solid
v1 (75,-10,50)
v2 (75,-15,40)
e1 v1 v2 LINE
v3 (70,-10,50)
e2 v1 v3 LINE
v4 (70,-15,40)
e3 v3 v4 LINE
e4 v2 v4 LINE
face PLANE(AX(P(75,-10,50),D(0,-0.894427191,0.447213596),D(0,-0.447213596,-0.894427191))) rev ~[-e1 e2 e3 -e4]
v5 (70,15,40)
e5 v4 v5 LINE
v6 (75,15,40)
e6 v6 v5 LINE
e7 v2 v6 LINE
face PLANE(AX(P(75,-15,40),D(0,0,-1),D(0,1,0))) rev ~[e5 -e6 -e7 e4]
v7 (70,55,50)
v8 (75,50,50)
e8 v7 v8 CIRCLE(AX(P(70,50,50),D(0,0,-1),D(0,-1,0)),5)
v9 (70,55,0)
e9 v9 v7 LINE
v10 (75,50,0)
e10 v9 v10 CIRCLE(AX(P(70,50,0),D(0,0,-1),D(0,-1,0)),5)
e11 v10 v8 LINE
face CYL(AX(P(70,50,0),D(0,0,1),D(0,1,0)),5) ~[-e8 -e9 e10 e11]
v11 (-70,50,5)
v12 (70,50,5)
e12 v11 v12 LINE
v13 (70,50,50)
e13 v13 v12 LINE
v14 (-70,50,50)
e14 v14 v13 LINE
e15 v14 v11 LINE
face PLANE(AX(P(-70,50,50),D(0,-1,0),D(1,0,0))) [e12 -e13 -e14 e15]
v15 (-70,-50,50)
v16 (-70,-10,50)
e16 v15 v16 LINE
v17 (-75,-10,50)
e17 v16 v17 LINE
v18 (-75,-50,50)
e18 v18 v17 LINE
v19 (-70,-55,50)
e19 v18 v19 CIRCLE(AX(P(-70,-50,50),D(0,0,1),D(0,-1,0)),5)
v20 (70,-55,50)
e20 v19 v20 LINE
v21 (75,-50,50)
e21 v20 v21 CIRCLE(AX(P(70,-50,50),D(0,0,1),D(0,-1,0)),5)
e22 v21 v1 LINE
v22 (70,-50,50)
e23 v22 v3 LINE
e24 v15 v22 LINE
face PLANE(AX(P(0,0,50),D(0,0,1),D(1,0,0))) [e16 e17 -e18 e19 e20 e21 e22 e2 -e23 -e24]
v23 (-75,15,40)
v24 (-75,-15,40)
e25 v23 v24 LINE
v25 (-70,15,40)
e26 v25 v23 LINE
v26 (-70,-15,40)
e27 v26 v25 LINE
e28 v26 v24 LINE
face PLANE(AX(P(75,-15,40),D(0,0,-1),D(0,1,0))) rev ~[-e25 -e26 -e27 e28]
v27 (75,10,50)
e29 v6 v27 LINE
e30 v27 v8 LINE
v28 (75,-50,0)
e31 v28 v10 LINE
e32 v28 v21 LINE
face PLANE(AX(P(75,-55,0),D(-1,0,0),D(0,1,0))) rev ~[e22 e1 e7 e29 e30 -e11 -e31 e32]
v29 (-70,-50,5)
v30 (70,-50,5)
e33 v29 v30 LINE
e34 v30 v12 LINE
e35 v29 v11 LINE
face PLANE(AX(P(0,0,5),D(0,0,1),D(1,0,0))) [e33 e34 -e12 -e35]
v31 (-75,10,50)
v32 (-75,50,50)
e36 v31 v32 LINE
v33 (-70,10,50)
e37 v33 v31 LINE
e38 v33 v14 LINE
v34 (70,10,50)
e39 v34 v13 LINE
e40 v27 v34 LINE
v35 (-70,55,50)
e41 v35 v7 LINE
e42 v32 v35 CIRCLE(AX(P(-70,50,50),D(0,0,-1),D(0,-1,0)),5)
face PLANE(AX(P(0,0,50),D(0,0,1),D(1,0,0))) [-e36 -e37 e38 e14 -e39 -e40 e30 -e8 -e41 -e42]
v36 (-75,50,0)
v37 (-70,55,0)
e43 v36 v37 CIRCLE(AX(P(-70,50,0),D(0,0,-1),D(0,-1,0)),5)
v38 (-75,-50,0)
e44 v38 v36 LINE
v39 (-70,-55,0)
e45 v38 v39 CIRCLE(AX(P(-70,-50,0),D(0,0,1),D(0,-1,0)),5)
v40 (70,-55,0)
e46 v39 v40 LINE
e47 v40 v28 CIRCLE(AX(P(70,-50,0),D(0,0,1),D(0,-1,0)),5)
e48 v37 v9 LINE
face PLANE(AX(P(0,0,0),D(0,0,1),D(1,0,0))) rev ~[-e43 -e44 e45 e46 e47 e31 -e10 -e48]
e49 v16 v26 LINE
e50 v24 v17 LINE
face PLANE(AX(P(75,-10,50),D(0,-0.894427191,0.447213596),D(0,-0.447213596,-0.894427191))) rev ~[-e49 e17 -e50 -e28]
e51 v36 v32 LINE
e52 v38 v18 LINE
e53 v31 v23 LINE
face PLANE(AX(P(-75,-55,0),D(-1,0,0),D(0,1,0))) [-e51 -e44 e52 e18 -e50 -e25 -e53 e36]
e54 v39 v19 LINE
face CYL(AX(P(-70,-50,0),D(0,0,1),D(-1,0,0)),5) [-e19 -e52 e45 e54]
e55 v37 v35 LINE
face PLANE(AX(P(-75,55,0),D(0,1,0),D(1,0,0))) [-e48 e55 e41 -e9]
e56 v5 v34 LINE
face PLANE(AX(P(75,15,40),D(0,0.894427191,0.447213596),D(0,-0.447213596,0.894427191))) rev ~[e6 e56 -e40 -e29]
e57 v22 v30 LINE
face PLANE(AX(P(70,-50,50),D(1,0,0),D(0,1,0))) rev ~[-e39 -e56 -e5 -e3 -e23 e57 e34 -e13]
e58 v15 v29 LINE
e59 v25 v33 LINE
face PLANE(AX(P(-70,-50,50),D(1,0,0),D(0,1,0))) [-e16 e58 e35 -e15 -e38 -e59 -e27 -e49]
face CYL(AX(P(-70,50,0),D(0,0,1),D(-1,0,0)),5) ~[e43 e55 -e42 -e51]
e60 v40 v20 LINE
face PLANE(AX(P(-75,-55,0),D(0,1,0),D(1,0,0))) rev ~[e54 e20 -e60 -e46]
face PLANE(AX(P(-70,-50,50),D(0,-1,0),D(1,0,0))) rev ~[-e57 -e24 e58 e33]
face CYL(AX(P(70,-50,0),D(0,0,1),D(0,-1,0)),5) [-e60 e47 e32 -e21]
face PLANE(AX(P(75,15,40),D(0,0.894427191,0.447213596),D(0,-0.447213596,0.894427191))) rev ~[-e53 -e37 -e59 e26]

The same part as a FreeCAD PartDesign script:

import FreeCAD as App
import Part
import Sketcher
Q = App.Units.Quantity


def edges_at(feature, points):
    """Names of the edges that pass closest to the given points."""
    edges = feature.Shape.Edges
    near = lambda p: min(range(len(edges)), key=lambda i: edges[i].distToShape(Part.Vertex(*p))[0])
    return sorted({f"Edge{near(p) + 1}" for p in points})

doc = App.newDocument("Part")
body = doc.addObject("PartDesign::Body", "Body")

sketch1 = body.newObject("Sketcher::SketchObject", "Sketch")
sketch1.AttachmentSupport = (doc.getObject("XY_Plane"), [""])
sketch1.MapMode = "FlatFace"
sketch1.addGeometry([
    Part.LineSegment(App.Vector(-75, 55, 0), App.Vector(-75, -55, 0)),
    Part.LineSegment(App.Vector(-75, -55, 0), App.Vector(75, -55, 0)),
    Part.LineSegment(App.Vector(75, -55, 0), App.Vector(75, 55, 0)),
    Part.LineSegment(App.Vector(75, 55, 0), App.Vector(-75, 55, 0)),
], False)
sketch1.addConstraint([
    Sketcher.Constraint("Coincident", 0, 2, 1, 1),
    Sketcher.Constraint("Coincident", 1, 2, 2, 1),
    Sketcher.Constraint("Coincident", 2, 2, 3, 1),
    Sketcher.Constraint("Coincident", 3, 2, 0, 1),
    Sketcher.Constraint("Vertical", 0),
    Sketcher.Constraint("Horizontal", 1),
    Sketcher.Constraint("Vertical", 2),
    Sketcher.Constraint("Horizontal", 3),
    Sketcher.Constraint("Symmetric", 0, 2, 2, 2, -1, 1),
    Sketcher.Constraint("DistanceX", 1, 1, 1, 2, Q("150 mm")),
    Sketcher.Constraint("DistanceY", 0, 2, 0, 1, Q("110 mm")),
])
pad1 = body.newObject("PartDesign::Pad", "Pad")
pad1.Profile = sketch1
pad1.Length = 50

sketch2 = body.newObject("Sketcher::SketchObject", "Sketch001")
sketch2.AttachmentSupport = (doc.getObject("XY_Plane"), [""])
sketch2.MapMode = "FlatFace"
sketch2.AttachmentOffset = App.Placement(App.Vector(0, 0, 50), App.Rotation())
sketch2.addGeometry([
    Part.LineSegment(App.Vector(-70, 50, 0), App.Vector(-70, -50, 0)),
    Part.LineSegment(App.Vector(-70, -50, 0), App.Vector(70, -50, 0)),
    Part.LineSegment(App.Vector(70, -50, 0), App.Vector(70, 50, 0)),
    Part.LineSegment(App.Vector(70, 50, 0), App.Vector(-70, 50, 0)),
], False)
sketch2.addConstraint([
    Sketcher.Constraint("Coincident", 0, 2, 1, 1),
    Sketcher.Constraint("Coincident", 1, 2, 2, 1),
    Sketcher.Constraint("Coincident", 2, 2, 3, 1),
    Sketcher.Constraint("Coincident", 3, 2, 0, 1),
    Sketcher.Constraint("Vertical", 0),
    Sketcher.Constraint("Horizontal", 1),
    Sketcher.Constraint("Vertical", 2),
    Sketcher.Constraint("Horizontal", 3),
    Sketcher.Constraint("Symmetric", 0, 2, 2, 2, -1, 1),
    Sketcher.Constraint("DistanceX", 1, 1, 1, 2, Q("140 mm")),
    Sketcher.Constraint("DistanceY", 0, 2, 0, 1, Q("100 mm")),
])
pocket1 = body.newObject("PartDesign::Pocket", "Pocket")
pocket1.Profile = sketch2
pocket1.Length = 45
doc.recompute()

fillet = body.newObject("PartDesign::Fillet", "Fillet")
fillet.Base = (pocket1, edges_at(pocket1, [
    (75, -55, 25),
    (75, 55, 25),
    (-75, 55, 25),
    (-75, -55, 25),
]))
fillet.Radius = 5

sketch3 = body.newObject("Sketcher::SketchObject", "Sketch002")
sketch3.AttachmentSupport = (doc.getObject("YZ_Plane"), [""])
sketch3.MapMode = "FlatFace"
sketch3.AttachmentOffset = App.Placement(App.Vector(0, 0, 75), App.Rotation())
sketch3.addGeometry([
    Part.LineSegment(App.Vector(10, 50, 0), App.Vector(-10, 50, 0)),
    Part.LineSegment(App.Vector(-10, 50, 0), App.Vector(-15, 40, 0)),
    Part.LineSegment(App.Vector(-15, 40, 0), App.Vector(15, 40, 0)),
    Part.LineSegment(App.Vector(15, 40, 0), App.Vector(10, 50, 0)),
], False)
sketch3.addConstraint([
    Sketcher.Constraint("Coincident", 0, 2, 1, 1),
    Sketcher.Constraint("Coincident", 1, 2, 2, 1),
    Sketcher.Constraint("Coincident", 2, 2, 3, 1),
    Sketcher.Constraint("Coincident", 3, 2, 0, 1),
    Sketcher.Constraint("Horizontal", 0),
    Sketcher.Constraint("Horizontal", 2),
    Sketcher.Constraint("Equal", 1, 3),
    Sketcher.Constraint("DistanceX", 0, 2, 0, 1, Q("20 mm")),
    Sketcher.Constraint("DistanceX", 2, 1, 2, 2, Q("30 mm")),
    Sketcher.Constraint("DistanceX", 0, 2, -1, 1, Q("10 mm")),
    Sketcher.Constraint("DistanceY", -1, 1, 0, 2, Q("50 mm")),
    Sketcher.Constraint("DistanceY", -1, 1, 1, 2, Q("40 mm")),
])
pocket2 = body.newObject("PartDesign::Pocket", "Pocket001")
pocket2.Profile = sketch3
pocket2.Length = 160

doc.recompute()
